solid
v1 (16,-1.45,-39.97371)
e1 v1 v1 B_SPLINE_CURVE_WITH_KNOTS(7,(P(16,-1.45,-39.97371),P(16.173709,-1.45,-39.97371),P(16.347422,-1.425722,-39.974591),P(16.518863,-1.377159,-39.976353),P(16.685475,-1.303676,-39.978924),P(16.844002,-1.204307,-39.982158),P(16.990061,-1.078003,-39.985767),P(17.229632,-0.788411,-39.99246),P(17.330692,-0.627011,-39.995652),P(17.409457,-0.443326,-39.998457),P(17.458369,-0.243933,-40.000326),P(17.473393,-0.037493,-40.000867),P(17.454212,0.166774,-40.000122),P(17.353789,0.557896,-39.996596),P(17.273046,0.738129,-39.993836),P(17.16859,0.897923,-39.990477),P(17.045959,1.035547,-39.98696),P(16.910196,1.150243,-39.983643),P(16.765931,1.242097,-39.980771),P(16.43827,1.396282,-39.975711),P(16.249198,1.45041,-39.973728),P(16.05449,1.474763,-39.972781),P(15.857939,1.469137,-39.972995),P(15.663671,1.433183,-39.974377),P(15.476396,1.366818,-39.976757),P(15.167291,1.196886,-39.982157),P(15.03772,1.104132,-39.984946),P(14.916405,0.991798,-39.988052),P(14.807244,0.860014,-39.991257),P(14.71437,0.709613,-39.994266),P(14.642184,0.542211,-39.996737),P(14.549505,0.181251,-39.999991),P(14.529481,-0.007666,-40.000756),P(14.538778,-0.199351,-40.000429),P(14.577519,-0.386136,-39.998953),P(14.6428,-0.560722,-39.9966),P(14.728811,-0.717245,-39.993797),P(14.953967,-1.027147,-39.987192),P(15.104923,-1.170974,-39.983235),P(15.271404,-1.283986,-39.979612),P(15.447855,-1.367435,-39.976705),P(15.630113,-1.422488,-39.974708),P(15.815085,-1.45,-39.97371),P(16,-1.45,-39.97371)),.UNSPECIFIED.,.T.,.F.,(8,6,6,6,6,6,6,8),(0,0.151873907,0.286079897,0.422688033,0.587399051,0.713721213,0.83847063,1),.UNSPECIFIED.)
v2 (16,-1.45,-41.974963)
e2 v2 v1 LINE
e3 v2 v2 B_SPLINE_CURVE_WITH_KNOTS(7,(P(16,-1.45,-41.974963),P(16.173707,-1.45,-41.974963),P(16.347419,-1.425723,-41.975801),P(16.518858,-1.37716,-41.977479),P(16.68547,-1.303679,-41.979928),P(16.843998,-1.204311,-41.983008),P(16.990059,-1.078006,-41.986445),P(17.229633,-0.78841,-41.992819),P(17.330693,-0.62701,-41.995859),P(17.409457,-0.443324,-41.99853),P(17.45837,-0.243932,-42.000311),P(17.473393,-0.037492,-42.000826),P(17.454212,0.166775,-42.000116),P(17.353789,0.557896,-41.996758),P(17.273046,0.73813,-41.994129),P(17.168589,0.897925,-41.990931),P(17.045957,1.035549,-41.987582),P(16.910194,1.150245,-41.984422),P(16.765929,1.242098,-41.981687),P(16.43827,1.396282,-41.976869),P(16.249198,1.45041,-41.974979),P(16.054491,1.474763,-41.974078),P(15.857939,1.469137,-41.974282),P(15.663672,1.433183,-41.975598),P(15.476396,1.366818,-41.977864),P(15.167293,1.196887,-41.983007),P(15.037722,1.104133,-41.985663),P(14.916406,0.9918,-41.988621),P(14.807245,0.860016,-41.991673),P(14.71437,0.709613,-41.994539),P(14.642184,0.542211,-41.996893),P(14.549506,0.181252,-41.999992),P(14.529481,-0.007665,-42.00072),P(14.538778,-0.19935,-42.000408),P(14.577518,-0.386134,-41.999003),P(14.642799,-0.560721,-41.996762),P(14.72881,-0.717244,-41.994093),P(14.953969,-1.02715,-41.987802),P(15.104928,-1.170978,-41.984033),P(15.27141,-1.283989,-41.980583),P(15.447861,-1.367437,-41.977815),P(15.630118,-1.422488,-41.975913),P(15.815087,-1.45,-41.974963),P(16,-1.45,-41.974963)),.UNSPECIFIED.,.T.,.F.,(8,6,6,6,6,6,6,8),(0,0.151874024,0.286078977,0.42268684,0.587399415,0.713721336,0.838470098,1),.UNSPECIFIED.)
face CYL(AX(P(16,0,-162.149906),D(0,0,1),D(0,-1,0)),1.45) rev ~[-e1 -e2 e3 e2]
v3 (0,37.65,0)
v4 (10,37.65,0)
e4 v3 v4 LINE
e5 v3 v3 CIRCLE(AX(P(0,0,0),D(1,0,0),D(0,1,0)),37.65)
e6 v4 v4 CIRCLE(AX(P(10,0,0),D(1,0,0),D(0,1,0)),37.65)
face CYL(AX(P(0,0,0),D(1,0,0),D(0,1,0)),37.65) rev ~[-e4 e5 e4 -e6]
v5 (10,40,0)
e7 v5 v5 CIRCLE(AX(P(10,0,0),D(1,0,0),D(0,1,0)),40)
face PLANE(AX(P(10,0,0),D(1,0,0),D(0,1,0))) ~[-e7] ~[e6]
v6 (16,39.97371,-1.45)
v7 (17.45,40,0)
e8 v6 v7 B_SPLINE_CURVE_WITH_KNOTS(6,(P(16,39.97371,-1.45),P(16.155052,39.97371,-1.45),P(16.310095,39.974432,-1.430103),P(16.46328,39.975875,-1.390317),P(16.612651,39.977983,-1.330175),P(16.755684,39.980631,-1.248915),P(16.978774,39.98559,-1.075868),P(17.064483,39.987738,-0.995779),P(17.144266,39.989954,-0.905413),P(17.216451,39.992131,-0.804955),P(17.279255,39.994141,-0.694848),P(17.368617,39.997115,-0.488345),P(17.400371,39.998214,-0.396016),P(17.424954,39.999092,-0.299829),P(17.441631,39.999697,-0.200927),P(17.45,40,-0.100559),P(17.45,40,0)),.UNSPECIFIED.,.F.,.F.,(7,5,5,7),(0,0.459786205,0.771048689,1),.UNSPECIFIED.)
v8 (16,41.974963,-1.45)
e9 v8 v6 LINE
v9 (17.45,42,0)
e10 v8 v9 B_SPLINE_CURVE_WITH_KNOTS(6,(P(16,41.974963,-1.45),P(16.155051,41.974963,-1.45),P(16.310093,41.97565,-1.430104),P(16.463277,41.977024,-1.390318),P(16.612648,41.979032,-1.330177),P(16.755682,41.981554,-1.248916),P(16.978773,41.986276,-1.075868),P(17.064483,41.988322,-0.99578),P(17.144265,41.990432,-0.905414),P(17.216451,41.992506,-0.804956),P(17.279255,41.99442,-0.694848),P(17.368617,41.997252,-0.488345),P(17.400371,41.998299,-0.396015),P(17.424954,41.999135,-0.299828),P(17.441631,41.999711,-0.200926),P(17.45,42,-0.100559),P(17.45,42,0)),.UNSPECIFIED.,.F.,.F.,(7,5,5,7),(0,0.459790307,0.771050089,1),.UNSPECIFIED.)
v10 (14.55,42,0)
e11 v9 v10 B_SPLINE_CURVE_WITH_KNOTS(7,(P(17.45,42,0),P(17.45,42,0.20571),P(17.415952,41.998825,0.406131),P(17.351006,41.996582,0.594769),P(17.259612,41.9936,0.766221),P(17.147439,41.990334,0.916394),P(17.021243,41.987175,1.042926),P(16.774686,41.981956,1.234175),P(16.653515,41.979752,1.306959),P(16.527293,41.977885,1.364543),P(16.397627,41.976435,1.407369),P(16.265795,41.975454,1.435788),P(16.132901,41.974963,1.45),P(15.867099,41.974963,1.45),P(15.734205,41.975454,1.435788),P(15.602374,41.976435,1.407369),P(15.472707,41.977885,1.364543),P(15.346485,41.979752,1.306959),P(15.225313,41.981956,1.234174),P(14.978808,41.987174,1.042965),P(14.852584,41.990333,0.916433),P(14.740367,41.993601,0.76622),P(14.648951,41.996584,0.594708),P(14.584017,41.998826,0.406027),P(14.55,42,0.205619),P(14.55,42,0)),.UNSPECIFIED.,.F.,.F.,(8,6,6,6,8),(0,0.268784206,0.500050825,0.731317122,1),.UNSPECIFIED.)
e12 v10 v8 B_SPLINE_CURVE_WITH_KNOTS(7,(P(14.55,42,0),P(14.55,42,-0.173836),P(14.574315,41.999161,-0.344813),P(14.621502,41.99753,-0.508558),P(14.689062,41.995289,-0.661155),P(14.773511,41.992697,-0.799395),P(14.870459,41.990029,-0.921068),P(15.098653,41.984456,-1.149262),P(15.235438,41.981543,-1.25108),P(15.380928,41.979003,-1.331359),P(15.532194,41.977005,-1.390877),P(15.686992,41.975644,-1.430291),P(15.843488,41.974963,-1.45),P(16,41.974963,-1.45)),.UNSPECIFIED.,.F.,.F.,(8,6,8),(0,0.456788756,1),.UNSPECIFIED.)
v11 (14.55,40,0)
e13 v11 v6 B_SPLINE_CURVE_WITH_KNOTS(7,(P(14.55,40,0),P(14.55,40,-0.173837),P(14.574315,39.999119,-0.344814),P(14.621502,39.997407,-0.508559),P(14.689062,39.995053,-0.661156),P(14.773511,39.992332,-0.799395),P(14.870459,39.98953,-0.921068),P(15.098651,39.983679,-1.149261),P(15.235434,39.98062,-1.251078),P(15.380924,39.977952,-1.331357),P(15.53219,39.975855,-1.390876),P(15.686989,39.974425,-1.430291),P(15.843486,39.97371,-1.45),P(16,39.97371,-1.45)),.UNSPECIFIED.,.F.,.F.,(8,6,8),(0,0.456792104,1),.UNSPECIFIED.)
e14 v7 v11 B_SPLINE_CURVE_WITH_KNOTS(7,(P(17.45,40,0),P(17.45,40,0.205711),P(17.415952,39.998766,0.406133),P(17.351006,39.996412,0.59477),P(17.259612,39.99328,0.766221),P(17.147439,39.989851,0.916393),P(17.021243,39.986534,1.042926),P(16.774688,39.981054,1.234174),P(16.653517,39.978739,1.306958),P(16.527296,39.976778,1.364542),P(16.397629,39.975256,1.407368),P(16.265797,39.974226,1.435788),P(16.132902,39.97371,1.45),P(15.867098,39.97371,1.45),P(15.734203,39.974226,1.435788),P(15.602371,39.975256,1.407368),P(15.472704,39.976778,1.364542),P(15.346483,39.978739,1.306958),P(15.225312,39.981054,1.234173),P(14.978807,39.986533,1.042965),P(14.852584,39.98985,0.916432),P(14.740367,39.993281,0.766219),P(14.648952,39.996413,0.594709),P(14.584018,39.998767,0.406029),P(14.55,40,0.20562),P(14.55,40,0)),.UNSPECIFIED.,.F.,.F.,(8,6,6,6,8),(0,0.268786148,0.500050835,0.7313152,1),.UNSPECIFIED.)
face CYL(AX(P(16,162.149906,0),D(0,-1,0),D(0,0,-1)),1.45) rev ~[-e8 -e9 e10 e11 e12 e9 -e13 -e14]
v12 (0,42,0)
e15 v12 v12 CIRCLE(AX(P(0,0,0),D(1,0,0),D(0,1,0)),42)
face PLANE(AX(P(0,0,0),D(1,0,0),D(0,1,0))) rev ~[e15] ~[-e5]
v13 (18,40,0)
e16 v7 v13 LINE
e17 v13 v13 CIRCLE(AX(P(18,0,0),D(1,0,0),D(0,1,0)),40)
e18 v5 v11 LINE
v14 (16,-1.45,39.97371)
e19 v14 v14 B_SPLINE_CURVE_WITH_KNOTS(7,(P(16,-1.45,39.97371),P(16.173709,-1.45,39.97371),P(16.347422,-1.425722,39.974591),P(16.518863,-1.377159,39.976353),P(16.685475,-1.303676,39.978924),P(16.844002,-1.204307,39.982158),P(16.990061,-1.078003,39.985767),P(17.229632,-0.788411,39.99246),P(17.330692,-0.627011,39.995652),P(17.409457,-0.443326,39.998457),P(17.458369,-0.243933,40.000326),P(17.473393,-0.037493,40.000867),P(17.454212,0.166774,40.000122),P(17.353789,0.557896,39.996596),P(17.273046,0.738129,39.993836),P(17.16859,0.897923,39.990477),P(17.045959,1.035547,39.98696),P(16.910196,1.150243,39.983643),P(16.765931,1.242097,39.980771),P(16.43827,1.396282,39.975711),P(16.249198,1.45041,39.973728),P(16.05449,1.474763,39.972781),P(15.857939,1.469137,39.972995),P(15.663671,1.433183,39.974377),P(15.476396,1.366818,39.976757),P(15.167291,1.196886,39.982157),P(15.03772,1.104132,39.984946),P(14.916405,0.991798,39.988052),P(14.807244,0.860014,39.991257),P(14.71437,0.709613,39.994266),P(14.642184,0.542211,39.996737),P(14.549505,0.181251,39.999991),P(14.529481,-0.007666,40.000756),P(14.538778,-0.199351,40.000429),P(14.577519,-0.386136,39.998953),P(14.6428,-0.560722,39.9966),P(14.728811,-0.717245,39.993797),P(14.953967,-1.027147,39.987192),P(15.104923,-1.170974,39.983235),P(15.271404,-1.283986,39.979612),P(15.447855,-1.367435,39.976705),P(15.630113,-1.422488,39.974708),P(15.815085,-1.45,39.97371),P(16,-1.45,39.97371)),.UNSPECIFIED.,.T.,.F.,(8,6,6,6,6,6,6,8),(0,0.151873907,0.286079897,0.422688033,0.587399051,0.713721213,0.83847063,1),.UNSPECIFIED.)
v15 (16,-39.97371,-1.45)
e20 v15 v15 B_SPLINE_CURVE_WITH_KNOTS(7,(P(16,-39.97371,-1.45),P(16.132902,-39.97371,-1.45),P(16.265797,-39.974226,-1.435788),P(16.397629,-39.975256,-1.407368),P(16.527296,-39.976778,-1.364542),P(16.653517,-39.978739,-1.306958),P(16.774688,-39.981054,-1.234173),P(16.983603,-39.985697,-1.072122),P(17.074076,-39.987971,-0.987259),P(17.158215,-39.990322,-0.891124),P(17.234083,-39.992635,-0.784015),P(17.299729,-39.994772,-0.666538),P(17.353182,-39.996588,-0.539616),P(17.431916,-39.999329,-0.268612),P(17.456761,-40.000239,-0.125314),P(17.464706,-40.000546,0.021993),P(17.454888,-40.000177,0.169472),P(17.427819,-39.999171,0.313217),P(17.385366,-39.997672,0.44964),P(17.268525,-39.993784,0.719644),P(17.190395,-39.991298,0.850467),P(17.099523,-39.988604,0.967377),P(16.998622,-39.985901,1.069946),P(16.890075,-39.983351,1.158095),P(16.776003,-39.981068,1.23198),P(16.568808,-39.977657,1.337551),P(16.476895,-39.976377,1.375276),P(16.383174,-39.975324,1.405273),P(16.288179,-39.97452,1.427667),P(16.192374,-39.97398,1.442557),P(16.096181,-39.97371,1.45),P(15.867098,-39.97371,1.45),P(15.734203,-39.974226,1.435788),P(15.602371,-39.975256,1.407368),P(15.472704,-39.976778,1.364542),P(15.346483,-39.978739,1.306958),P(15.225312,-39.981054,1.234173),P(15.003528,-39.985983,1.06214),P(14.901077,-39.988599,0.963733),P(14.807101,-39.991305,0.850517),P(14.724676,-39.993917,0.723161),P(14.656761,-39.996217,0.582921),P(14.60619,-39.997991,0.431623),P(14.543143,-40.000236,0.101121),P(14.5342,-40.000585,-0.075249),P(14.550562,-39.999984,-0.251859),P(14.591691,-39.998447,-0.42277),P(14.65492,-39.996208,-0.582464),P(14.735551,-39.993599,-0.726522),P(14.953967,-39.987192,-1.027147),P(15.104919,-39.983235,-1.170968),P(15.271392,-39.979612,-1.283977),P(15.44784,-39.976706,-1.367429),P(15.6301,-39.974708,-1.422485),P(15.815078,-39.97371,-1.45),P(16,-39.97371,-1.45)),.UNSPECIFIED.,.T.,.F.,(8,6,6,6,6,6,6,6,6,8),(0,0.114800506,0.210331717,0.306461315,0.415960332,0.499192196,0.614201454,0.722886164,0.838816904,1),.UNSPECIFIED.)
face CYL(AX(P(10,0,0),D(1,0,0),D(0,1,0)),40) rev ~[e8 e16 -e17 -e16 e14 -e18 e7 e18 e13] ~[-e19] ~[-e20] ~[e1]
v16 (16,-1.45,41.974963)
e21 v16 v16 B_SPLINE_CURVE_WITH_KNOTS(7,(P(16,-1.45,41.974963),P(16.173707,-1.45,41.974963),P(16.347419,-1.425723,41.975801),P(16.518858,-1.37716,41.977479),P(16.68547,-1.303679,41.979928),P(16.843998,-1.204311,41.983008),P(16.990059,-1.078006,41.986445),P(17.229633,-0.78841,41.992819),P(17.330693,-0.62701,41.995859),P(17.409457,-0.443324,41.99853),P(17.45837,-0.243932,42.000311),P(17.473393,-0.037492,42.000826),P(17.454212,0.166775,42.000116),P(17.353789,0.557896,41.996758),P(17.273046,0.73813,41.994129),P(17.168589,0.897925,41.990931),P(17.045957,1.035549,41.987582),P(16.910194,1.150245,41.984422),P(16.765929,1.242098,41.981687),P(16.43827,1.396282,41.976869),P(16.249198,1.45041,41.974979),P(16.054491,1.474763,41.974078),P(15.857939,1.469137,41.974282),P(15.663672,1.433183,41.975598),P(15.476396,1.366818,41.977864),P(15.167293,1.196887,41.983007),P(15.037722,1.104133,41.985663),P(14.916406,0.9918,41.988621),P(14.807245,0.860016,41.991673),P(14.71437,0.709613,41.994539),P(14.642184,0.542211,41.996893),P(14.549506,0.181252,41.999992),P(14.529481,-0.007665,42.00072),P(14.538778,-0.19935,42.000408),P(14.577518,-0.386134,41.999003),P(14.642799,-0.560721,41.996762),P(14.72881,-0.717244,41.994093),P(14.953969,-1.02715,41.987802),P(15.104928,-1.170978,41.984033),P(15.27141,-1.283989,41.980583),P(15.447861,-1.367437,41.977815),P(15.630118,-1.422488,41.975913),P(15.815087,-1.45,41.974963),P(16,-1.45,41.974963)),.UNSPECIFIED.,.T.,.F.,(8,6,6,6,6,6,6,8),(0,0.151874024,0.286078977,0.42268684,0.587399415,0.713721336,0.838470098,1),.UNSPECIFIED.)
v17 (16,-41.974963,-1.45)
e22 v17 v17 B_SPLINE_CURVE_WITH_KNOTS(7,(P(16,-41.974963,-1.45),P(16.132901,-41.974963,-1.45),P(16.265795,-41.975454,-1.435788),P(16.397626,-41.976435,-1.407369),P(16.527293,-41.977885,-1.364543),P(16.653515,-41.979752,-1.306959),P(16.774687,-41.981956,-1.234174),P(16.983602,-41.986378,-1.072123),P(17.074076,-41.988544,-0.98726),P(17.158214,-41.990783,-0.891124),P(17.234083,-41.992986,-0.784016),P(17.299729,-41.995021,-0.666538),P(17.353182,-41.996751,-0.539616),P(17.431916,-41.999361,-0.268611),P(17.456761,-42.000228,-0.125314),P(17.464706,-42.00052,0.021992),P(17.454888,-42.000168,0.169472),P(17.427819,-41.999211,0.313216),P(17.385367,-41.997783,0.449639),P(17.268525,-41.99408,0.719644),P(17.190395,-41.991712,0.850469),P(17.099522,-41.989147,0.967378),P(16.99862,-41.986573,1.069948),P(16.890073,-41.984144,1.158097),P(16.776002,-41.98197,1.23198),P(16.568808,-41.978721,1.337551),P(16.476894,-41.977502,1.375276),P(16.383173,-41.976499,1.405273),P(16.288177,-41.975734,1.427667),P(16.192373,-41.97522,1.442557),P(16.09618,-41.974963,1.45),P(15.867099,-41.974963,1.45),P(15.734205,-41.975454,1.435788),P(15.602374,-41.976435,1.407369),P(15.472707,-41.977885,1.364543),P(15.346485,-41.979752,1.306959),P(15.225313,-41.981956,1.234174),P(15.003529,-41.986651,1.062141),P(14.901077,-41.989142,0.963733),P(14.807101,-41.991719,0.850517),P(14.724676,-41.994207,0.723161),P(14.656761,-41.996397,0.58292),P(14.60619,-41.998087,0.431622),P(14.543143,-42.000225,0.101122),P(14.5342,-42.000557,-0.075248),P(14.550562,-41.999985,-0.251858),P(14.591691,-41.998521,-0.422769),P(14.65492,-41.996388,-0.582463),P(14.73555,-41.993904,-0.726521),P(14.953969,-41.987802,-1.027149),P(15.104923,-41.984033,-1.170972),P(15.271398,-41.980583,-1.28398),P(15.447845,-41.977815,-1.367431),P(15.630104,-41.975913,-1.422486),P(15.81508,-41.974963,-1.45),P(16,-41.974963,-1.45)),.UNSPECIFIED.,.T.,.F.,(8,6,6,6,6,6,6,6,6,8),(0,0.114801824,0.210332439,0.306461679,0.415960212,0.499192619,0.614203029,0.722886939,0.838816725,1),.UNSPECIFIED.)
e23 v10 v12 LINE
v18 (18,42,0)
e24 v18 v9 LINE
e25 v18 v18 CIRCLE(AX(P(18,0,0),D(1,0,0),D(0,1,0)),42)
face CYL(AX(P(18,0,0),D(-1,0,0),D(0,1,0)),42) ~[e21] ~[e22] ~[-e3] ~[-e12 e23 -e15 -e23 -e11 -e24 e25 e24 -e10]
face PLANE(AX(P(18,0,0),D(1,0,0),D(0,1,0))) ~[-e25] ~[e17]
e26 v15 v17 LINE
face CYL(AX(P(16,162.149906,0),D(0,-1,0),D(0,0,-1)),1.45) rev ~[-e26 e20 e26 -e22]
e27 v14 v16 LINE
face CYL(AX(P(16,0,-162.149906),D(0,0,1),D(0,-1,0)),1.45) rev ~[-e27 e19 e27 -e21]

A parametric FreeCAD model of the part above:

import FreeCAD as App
import Part
import Sketcher


def add_polygon(sketch, points):
    """Adds a closed chain of lines whose ends are joined by coincident constraints."""
    first, n = sketch.GeometryCount, len(points)
    for a, b in zip(points, points[1:] + points[:1]):
        sketch.addGeometry(Part.LineSegment(App.Vector(*a, 0), App.Vector(*b, 0)), False)
    for i in range(n):
        sketch.addConstraint(Sketcher.Constraint("Coincident", first + i, 2, first + (i + 1) % n, 1))

doc = App.newDocument("Part")
body = doc.addObject("PartDesign::Body", "Body")

# Sketch on XY plane
sketch1 = doc.addObject("Sketcher::SketchObject", "Sketch")
body.addObject(sketch1)
sketch1.AttachmentSupport = (doc.XY_Plane, [""])
sketch1.MapMode = "FlatFace"
add_polygon(sketch1, [(0, 42), (0, 37.6), (10, 37.6), (10, 40), (18, 40), (18, 42)])  # lines 0-5
sketch1.addConstraint([
    Sketcher.Constraint("Vertical", 0),
    Sketcher.Constraint("Horizontal", 1),
    Sketcher.Constraint("Vertical", 2),
    Sketcher.Constraint("Horizontal", 3),
    Sketcher.Constraint("Vertical", 4),
    Sketcher.Constraint("Horizontal", 5),
    Sketcher.Constraint("PointOnObject", 0, 2, -2),
    Sketcher.Constraint("DistanceX", 1, 1, 1, 2, 10.0),
    Sketcher.Constraint("DistanceX", 3, 1, 3, 2, 8.0),
    Sketcher.Constraint("DistanceY", 4, 1, 4, 2, 2.0),
    Sketcher.Constraint("DistanceY", -1, 1, 2, 2, 40.0),
    Sketcher.Constraint("DistanceY", 0, 2, 0, 1, 4.35),
])
revolution = doc.addObject("PartDesign::Revolution", "Revolution")
body.addObject(revolution)
revolution.Profile = sketch1
revolution.ReferenceAxis = (sketch1, ["H_Axis"])
revolution.Angle = 360

# Sketch on XZ plane
sketch2 = doc.addObject("Sketcher::SketchObject", "Sketch001")
body.addObject(sketch2)
sketch2.AttachmentSupport = (doc.XZ_Plane, [""])
sketch2.MapMode = "FlatFace"
sketch2.AttachmentOffset = App.Placement(App.Vector(0, 0, -42), App.Rotation())
sketch2.addGeometry(Part.Circle(App.Vector(16, 0, 0), App.Vector(0, 0, 1), 1.4), False)
sketch2.addConstraint([
    Sketcher.Constraint("PointOnObject", 0, 3, -1),
    Sketcher.Constraint("Diameter", 0, 2.9),
    Sketcher.Constraint("DistanceX", -1, 1, 0, 3, 16.0),
])
doc.recompute()
hole = doc.addObject("PartDesign::Hole", "Hole")
body.addObject(hole)
hole.Profile = sketch2
hole.ThreadType = "None"
hole.Diameter = 2.9
hole.DepthType = "ThroughAll"
hole.Reversed = True
doc.recompute()

polarpattern = doc.addObject("PartDesign::PolarPattern", "PolarPattern")
body.addObject(polarpattern)
polarpattern.Originals = [hole]
polarpattern.Axis = (doc.X_Axis, [""])
polarpattern.Angle = 90
polarpattern.Occurrences = 2
polarpattern.Reversed = True
body.Tip = polarpattern

doc.recompute()
